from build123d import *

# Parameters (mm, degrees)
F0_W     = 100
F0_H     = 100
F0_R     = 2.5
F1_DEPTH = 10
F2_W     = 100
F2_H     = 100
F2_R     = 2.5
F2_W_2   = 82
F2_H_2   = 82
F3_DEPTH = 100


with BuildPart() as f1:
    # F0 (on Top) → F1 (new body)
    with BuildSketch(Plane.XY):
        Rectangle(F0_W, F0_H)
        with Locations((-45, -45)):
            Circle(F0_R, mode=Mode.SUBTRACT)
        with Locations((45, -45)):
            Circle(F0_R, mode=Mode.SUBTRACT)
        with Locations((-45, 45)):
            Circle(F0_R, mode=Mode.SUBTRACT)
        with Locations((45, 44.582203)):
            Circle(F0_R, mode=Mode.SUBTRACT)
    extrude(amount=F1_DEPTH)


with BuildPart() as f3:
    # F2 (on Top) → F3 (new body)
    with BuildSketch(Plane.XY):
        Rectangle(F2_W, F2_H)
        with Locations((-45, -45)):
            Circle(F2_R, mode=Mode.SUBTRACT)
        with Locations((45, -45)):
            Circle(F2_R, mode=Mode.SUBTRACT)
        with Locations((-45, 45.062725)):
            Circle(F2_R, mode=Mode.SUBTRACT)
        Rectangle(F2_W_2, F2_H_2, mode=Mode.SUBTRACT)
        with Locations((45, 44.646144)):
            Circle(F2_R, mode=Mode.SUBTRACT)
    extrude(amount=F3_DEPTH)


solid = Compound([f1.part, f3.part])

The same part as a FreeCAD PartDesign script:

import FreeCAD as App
import Part
import Sketcher


def add_polygon(sketch, points):
    """Adds a closed chain of lines whose ends are joined by coincident constraints."""
    first, n = sketch.GeometryCount, len(points)
    for a, b in zip(points, points[1:] + points[:1]):
        sketch.addGeometry(Part.LineSegment(App.Vector(*a, 0), App.Vector(*b, 0)), False)
    for i in range(n):
        sketch.addConstraint(Sketcher.Constraint("Coincident", first + i, 2, first + (i + 1) % n, 1))

doc = App.newDocument("Part")
params = doc.addObject("Spreadsheet::Sheet", "Params")
for row, (alias, value) in enumerate([
    ("sketch1_diameter", "5 mm"),
    ("sketch1_width", "100 mm"),
    ("pad1_length", "10 mm"),
    ("sketch2_diameter", "5 mm"),
    ("sketch2_width", "100 mm"),
    ("sketch2_width2", "82 mm"),
    ("pad2_length", "100 mm"),
], start=1):
    params.set(f"A{row}", alias)
    params.set(f"B{row}", "=" + value)
    params.setAlias(f"B{row}", alias)

body = doc.addObject("PartDesign::Body", "Body")

sketch1 = doc.addObject("Sketcher::SketchObject", "Sketch")
body.addObject(sketch1)
sketch1.AttachmentSupport = (doc.XY_Plane, [""])
sketch1.MapMode = "FlatFace"
add_polygon(sketch1, [(-50, 50), (-50, -50), (50, -50), (50, 50)])
sketch1.addGeometry(Part.Circle(App.Vector(-45, -45, 0), App.Vector(0, 0, 1), 2.5), False)
sketch1.addGeometry(Part.Circle(App.Vector(45, -45, 0), App.Vector(0, 0, 1), 2.5), False)
sketch1.addGeometry(Part.Circle(App.Vector(-45, 45, 0), App.Vector(0, 0, 1), 2.5), False)
sketch1.addGeometry(Part.Circle(App.Vector(45, 44.6, 0), App.Vector(0, 0, 1), 2.5), False)
sketch1.addConstraint([
    Sketcher.Constraint("Vertical", 0),
    Sketcher.Constraint("Horizontal", 1),
    Sketcher.Constraint("Vertical", 2),
    Sketcher.Constraint("Horizontal", 3),
    Sketcher.Constraint("Equal", 4, 5),
    Sketcher.Constraint("Equal", 5, 6),
    Sketcher.Constraint("Equal", 6, 7),
    Sketcher.Constraint("Symmetric", 5, 3, 6, 3, -1, 1),
    Sketcher.Constraint("Symmetric", 0, 2, 2, 2, -1, 1),
    Sketcher.Constraint("Symmetric", 4, 3, 5, 3, -2),
    Sketcher.Constraint("Vertical", 5, 3, 7, 3),
    Sketcher.Constraint("Equal", 3, 0),
    Sketcher.Constraint("Diameter", 4, 5.0),
    Sketcher.Constraint("DistanceX", 1, 1, 1, 2, 100.0),
    Sketcher.Constraint("DistanceX", 4, 3, -1, 1, 45.0),
    Sketcher.Constraint("DistanceY", 4, 3, -1, 1, 45.0),
    Sketcher.Constraint("DistanceY", -1, 1, 7, 3, 44.582203),
])
sketch1.setExpression("Constraints[16]", "Params.sketch1_diameter")
sketch1.setExpression("Constraints[17]", "Params.sketch1_width")
pad1 = doc.addObject("PartDesign::Pad", "Pad")
body.addObject(pad1)
pad1.Profile = sketch1
pad1.setExpression("Length", "Params.pad1_length")
body2 = doc.addObject("PartDesign::Body", "Body001")

sketch2 = doc.addObject("Sketcher::SketchObject", "Sketch001")
body2.addObject(sketch2)
sketch2.AttachmentSupport = (doc.getObject("XY_Plane001"), [""])
sketch2.MapMode = "FlatFace"
add_polygon(sketch2, [(-50, 50), (-50, -50), (50, -50), (50, 50)])
sketch2.addGeometry(Part.Circle(App.Vector(-45, -45, 0), App.Vector(0, 0, 1), 2.5), False)
sketch2.addGeometry(Part.Circle(App.Vector(45, -45, 0), App.Vector(0, 0, 1), 2.5), False)
add_polygon(sketch2, [(41, -41), (-41, -41), (-41, 41), (41, 41)])
sketch2.addGeometry(Part.Circle(App.Vector(-45, 45.1, 0), App.Vector(0, 0, 1), 2.5), False)
sketch2.addGeometry(Part.Circle(App.Vector(45, 44.6, 0), App.Vector(0, 0, 1), 2.5), False)
sketch2.addConstraint([
    Sketcher.Constraint("Vertical", 0),
    Sketcher.Constraint("Horizontal", 1),
    Sketcher.Constraint("Vertical", 2),
    Sketcher.Constraint("Horizontal", 3),
    Sketcher.Constraint("Horizontal", 6),
    Sketcher.Constraint("Vertical", 7),
    Sketcher.Constraint("Horizontal", 8),
    Sketcher.Constraint("Vertical", 9),
    Sketcher.Constraint("Equal", 4, 5),
    Sketcher.Constraint("Equal", 5, 10),
    Sketcher.Constraint("Equal", 10, 11),
    Sketcher.Constraint("Symmetric", 0, 2, 2, 2, -1, 1),
    Sketcher.Constraint("Symmetric", 6, 2, 8, 2, -1, 1),
    Sketcher.Constraint("Symmetric", 4, 3, 5, 3, -2),
    Sketcher.Constraint("Vertical", 4, 3, 10, 3),
    Sketcher.Constraint("Vertical", 5, 3, 11, 3),
    Sketcher.Constraint("Equal", 3, 0),
    Sketcher.Constraint("Equal", 8, 7),
    Sketcher.Constraint("Diameter", 4, 5.0),
    Sketcher.Constraint("DistanceX", 1, 1, 1, 2, 100.0),
    Sketcher.Constraint("DistanceX", 6, 2, 6, 1, 82.0),
    Sketcher.Constraint("DistanceX", 4, 3, -1, 1, 45.0),
    Sketcher.Constraint("DistanceY", 4, 3, -1, 1, 45.0),
    Sketcher.Constraint("DistanceY", 11, 3, 10, 3, 0.416581),
    Sketcher.Constraint("DistanceY", -1, 1, 10, 3, 45.062725),
])
sketch2.setExpression("Constraints[26]", "Params.sketch2_diameter")
sketch2.setExpression("Constraints[27]", "Params.sketch2_width")
sketch2.setExpression("Constraints[28]", "Params.sketch2_width2")
pad2 = doc.addObject("PartDesign::Pad", "Pad001")
body2.addObject(pad2)
pad2.Profile = sketch2
pad2.setExpression("Length", "Params.pad2_length")

doc.recompute()
